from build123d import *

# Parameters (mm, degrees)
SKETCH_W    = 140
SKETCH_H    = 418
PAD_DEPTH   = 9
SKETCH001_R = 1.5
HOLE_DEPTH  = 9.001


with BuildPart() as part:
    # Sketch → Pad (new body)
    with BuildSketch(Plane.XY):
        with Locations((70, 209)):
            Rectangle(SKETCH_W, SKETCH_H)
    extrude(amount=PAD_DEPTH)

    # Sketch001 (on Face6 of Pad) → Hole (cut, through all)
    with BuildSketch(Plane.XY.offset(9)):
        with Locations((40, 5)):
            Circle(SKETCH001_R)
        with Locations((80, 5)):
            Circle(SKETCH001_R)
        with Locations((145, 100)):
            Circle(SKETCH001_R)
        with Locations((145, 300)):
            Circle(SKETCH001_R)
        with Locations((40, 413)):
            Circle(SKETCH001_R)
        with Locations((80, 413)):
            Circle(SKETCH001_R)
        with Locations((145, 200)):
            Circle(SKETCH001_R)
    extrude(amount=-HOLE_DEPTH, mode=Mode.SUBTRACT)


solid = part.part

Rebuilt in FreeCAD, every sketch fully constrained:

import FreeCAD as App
import Part
import Sketcher
Q = App.Units.Quantity

doc = App.newDocument("Part")
body = doc.addObject("PartDesign::Body", "Body")

# Sketch on XY plane
sketch1 = body.newObject("Sketcher::SketchObject", "Sketch")
sketch1.AttachmentSupport = (doc.getObject("XY_Plane"), [""])
sketch1.MapMode = "FlatFace"
sketch1.addGeometry(Part.LineSegment(App.Vector(0, 418, 0), App.Vector(0, 0, 0)), False)
sketch1.addGeometry(Part.LineSegment(App.Vector(0, 0, 0), App.Vector(140, 0, 0)), False)
sketch1.addGeometry(Part.LineSegment(App.Vector(140, 0, 0), App.Vector(140, 418, 0)), False)
sketch1.addGeometry(Part.LineSegment(App.Vector(140, 418, 0), App.Vector(0, 418, 0)), False)
sketch1.addConstraint(Sketcher.Constraint("Coincident", 0, 2, 1, 1))
sketch1.addConstraint(Sketcher.Constraint("Coincident", 1, 2, 2, 1))
sketch1.addConstraint(Sketcher.Constraint("Coincident", 2, 2, 3, 1))
sketch1.addConstraint(Sketcher.Constraint("Coincident", 3, 2, 0, 1))
sketch1.addConstraint(Sketcher.Constraint("Vertical", 0))
sketch1.addConstraint(Sketcher.Constraint("Horizontal", 1))
sketch1.addConstraint(Sketcher.Constraint("Vertical", 2))
sketch1.addConstraint(Sketcher.Constraint("Horizontal", 3))
sketch1.addConstraint(Sketcher.Constraint("Coincident", 0, 2, -1, 1))
sketch1.addConstraint(Sketcher.Constraint("DistanceX", 1, 1, 1, 2, Q("140 mm")))
sketch1.addConstraint(Sketcher.Constraint("DistanceY", 0, 2, 0, 1, Q("418 mm")))
pad1 = body.newObject("PartDesign::Pad", "Pad")
pad1.Profile = sketch1
pad1.Length = 9

# Sketch on XY plane
sketch2 = body.newObject("Sketcher::SketchObject", "Sketch001")
sketch2.AttachmentSupport = (doc.getObject("XY_Plane"), [""])
sketch2.MapMode = "FlatFace"
sketch2.AttachmentOffset = App.Placement(App.Vector(0, 0, 9), App.Rotation())
sketch2.addGeometry(Part.Circle(App.Vector(40, 5, 0), App.Vector(0, 0, 1), 1.5), False)
sketch2.addGeometry(Part.Circle(App.Vector(80, 5, 0), App.Vector(0, 0, 1), 1.5), False)
sketch2.addGeometry(Part.Circle(App.Vector(145, 100, 0), App.Vector(0, 0, 1), 1.5), False)
sketch2.addGeometry(Part.Circle(App.Vector(145, 300, 0), App.Vector(0, 0, 1), 1.5), False)
sketch2.addGeometry(Part.Circle(App.Vector(40, 413, 0), App.Vector(0, 0, 1), 1.5), False)
sketch2.addGeometry(Part.Circle(App.Vector(80, 413, 0), App.Vector(0, 0, 1), 1.5), False)
sketch2.addGeometry(Part.Circle(App.Vector(145, 200, 0), App.Vector(0, 0, 1), 1.5), False)
sketch2.addConstraint(Sketcher.Constraint("Equal", 0, 1))
sketch2.addConstraint(Sketcher.Constraint("Equal", 1, 2))
sketch2.addConstraint(Sketcher.Constraint("Equal", 2, 3))
sketch2.addConstraint(Sketcher.Constraint("Equal", 3, 4))
sketch2.addConstraint(Sketcher.Constraint("Equal", 4, 5))
sketch2.addConstraint(Sketcher.Constraint("Equal", 5, 6))
sketch2.addConstraint(Sketcher.Constraint("Horizontal", 0, 3, 1, 3))
sketch2.addConstraint(Sketcher.Constraint("Horizontal", 4, 3, 5, 3))
sketch2.addConstraint(Sketcher.Constraint("Vertical", 2, 3, 3, 3))
sketch2.addConstraint(Sketcher.Constraint("Vertical", 0, 3, 4, 3))
sketch2.addConstraint(Sketcher.Constraint("Vertical", 1, 3, 5, 3))
sketch2.addConstraint(Sketcher.Constraint("Vertical", 3, 3, 6, 3))
sketch2.addConstraint(Sketcher.Constraint("Diameter", 0, Q("3 mm")))
sketch2.addConstraint(Sketcher.Constraint("DistanceX", -1, 1, 0, 3, Q("40 mm")))
sketch2.addConstraint(Sketcher.Constraint("DistanceY", -1, 1, 0, 3, Q("5 mm")))
sketch2.addConstraint(Sketcher.Constraint("DistanceX", -1, 1, 1, 3, Q("80 mm")))
sketch2.addConstraint(Sketcher.Constraint("DistanceX", -1, 1, 2, 3, Q("145 mm")))
sketch2.addConstraint(Sketcher.Constraint("DistanceY", -1, 1, 2, 3, Q("100 mm")))
sketch2.addConstraint(Sketcher.Constraint("DistanceY", -1, 1, 3, 3, Q("300 mm")))
sketch2.addConstraint(Sketcher.Constraint("DistanceY", -1, 1, 4, 3, Q("413 mm")))
sketch2.addConstraint(Sketcher.Constraint("DistanceY", -1, 1, 6, 3, Q("200 mm")))
pocket1 = body.newObject("PartDesign::Pocket", "Pocket")
pocket1.Profile = sketch2
pocket1.Type = "ThroughAll"

doc.recompute()
